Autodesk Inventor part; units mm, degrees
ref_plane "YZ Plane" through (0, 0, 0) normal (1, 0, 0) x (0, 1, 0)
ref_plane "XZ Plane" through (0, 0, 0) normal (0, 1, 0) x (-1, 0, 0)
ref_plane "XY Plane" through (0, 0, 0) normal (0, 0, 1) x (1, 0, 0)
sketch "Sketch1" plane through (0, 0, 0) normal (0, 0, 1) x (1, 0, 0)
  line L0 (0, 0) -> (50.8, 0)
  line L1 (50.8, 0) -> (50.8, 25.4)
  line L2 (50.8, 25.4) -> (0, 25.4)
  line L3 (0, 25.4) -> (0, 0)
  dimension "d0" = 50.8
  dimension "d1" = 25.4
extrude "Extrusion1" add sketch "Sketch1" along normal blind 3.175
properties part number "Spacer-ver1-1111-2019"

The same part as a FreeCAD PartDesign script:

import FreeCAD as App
import Part
import Sketcher

V = App.Vector
Q = App.Units.Quantity


def add_polygon(sketch, points):
    """Adds a closed chain of lines whose ends are joined by coincident constraints."""
    first, n = sketch.GeometryCount, len(points)
    for a, b in zip(points, points[1:] + points[:1]):
        sketch.addGeometry(Part.LineSegment(App.Vector(*a, 0), App.Vector(*b, 0)), False)
    for i in range(n):
        sketch.addConstraint(Sketcher.Constraint("Coincident", first + i, 2, first + (i + 1) % n, 1))

doc = App.newDocument("Part")
body = doc.addObject("PartDesign::Body", "Body")

# Sketch on XY plane
sketch1 = body.newObject("Sketcher::SketchObject", "Sketch")
sketch1.AttachmentSupport = (doc.getObject("XY_Plane"), [""])
sketch1.MapMode = "FlatFace"
add_polygon(sketch1, [(0, 25), (0, 0), (51, 0), (51, 25)])  # lines 0-3
sketch1.addConstraint(Sketcher.Constraint("Vertical", 0))
sketch1.addConstraint(Sketcher.Constraint("Horizontal", 1))
sketch1.addConstraint(Sketcher.Constraint("Vertical", 2))
sketch1.addConstraint(Sketcher.Constraint("Horizontal", 3))
sketch1.addConstraint(Sketcher.Constraint("Coincident", 0, 2, -1, 1))
sketch1.addConstraint(Sketcher.Constraint("DistanceX", 1, 1, 1, 2, Q("2 in")))
sketch1.addConstraint(Sketcher.Constraint("DistanceY", 0, 2, 0, 1, Q("1 in")))
pad1 = body.newObject("PartDesign::Pad", "Pad")
pad1.Profile = sketch1
pad1.Length = Q("0.125 in")

doc.recompute()
